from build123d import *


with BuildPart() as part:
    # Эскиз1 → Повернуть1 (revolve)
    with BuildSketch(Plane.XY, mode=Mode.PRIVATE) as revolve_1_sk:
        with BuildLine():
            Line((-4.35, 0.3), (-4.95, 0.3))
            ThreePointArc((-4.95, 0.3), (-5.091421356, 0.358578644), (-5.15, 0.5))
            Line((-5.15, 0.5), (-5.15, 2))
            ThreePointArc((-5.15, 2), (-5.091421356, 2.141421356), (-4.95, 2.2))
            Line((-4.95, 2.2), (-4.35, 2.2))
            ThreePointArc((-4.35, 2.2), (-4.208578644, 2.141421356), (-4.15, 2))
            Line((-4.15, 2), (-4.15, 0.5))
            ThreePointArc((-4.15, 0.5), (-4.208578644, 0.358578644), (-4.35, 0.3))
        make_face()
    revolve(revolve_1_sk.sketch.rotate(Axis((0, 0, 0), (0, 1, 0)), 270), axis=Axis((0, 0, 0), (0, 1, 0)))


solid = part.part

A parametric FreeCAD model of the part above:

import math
import FreeCAD as App
import Part
import Sketcher

doc = App.newDocument("Part")
body = doc.addObject("PartDesign::Body", "Body")

# Sketch on XY plane
sketch1 = doc.addObject("Sketcher::SketchObject", "Sketch")
body.addObject(sketch1)
sketch1.AttachmentSupport = (doc.XY_Plane, [""])
sketch1.MapMode = "FlatFace"
sketch1.addGeometry([
    Part.LineSegment(App.Vector(-4.95, 0.3, 0), App.Vector(-4.35, 0.3, 0)),  # 0
    Part.ArcOfCircle(Part.Circle(App.Vector(-4.35, 0.5, 0), App.Vector(0, 0, 1), 0.2), math.radians(-90), math.radians(0)),  # 1
    Part.LineSegment(App.Vector(-4.15, 0.5, 0), App.Vector(-4.15, 2, 0)),  # 2
    Part.ArcOfCircle(Part.Circle(App.Vector(-4.35, 2, 0), App.Vector(0, 0, 1), 0.2), math.radians(0), math.radians(90)),  # 3
    Part.LineSegment(App.Vector(-4.35, 2.2, 0), App.Vector(-4.95, 2.2, 0)),  # 4
    Part.ArcOfCircle(Part.Circle(App.Vector(-4.95, 2, 0), App.Vector(0, 0, 1), 0.2), math.radians(90), math.radians(180)),  # 5
    Part.LineSegment(App.Vector(-5.15, 2, 0), App.Vector(-5.15, 0.5, 0)),  # 6
    Part.ArcOfCircle(Part.Circle(App.Vector(-4.95, 0.5, 0), App.Vector(0, 0, 1), 0.2), math.radians(-180), math.radians(-90)),  # 7
], False)
sketch1.addConstraint([
    Sketcher.Constraint("Tangent", 0, 2, 1, 1),
    Sketcher.Constraint("Tangent", 1, 2, 2, 1),
    Sketcher.Constraint("Tangent", 2, 2, 3, 1),
    Sketcher.Constraint("Tangent", 3, 2, 4, 1),
    Sketcher.Constraint("Tangent", 4, 2, 5, 1),
    Sketcher.Constraint("Tangent", 5, 2, 6, 1),
    Sketcher.Constraint("Tangent", 6, 2, 7, 1),
    Sketcher.Constraint("Tangent", 7, 2, 0, 1),
    Sketcher.Constraint("Horizontal", 0),
    Sketcher.Constraint("Vertical", 2),
    Sketcher.Constraint("Horizontal", 4),
    Sketcher.Constraint("Vertical", 6),
    Sketcher.Constraint("Equal", 1, 3),
    Sketcher.Constraint("Equal", 3, 5),
    Sketcher.Constraint("Equal", 5, 7),
    Sketcher.Constraint("Radius", 1, 0.2),
    Sketcher.Constraint("DistanceX", 0, 1, 0, 2, 0.6),
    Sketcher.Constraint("DistanceY", 2, 1, 2, 2, 1.5),
    Sketcher.Constraint("DistanceY", -1, 1, 3, 3, 2.0),
    Sketcher.Constraint("DistanceX", 1, 3, -1, 1, 4.35),
])
revolution = doc.addObject("PartDesign::Revolution", "Revolution")
body.addObject(revolution)
revolution.Profile = sketch1
revolution.ReferenceAxis = (sketch1, ["V_Axis"])
revolution.Angle = 360

doc.recompute()
